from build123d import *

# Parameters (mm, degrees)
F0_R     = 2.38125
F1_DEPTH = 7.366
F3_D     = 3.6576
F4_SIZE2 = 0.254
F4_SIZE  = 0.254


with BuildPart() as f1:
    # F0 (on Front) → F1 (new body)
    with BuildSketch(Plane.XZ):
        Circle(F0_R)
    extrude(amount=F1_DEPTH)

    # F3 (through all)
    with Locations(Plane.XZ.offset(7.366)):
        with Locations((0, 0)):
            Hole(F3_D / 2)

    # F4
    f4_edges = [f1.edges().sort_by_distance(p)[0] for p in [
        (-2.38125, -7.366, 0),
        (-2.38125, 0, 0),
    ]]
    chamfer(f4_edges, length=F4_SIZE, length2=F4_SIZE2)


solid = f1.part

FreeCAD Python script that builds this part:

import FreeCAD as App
import Part
import Sketcher

V = App.Vector
Q = App.Units.Quantity


def edges_at(feature, points):
    """Names of the edges that pass closest to the given points."""
    edges = feature.Shape.Edges
    near = lambda p: min(range(len(edges)), key=lambda i: edges[i].distToShape(Part.Vertex(*p))[0])
    return sorted({f"Edge{near(p) + 1}" for p in points})

doc = App.newDocument("Part")
params = doc.addObject("Spreadsheet::Sheet", "Params")
for row, (alias, value) in enumerate([
    ("sketch1_diameter", "0.1875 in"),
    ("pad1_length", "0.29 in"),
    ("sketch2_diameter", "0.144 in"),
    ("hole_diameter", "0.144 in"),
    ("chamfer_size", "0.01 in"),
    ("chamfer_size2", "0.01 in"),
], start=1):
    params.set(f"A{row}", alias)
    params.set(f"B{row}", "=" + value)
    params.setAlias(f"B{row}", alias)

body = doc.addObject("PartDesign::Body", "Body")

# Sketch on XZ plane
sketch1 = doc.addObject("Sketcher::SketchObject", "Sketch")
body.addObject(sketch1)
sketch1.AttachmentSupport = (doc.XZ_Plane, [""])
sketch1.MapMode = "FlatFace"
sketch1.addGeometry(Part.Circle(V(0, 0, 0), V(0, 0, 1), 2.4), False)
sketch1.addConstraint([
    Sketcher.Constraint("Coincident", 0, 3, -1, 1),
    Sketcher.Constraint("Diameter", 0, Q("0.1875 in")),
])
sketch1.setExpression("Constraints[1]", "Params.sketch1_diameter")
pad1 = doc.addObject("PartDesign::Pad", "Pad")
body.addObject(pad1)
pad1.Profile = sketch1
pad1.setExpression("Length", "Params.pad1_length")

# Sketch on XZ plane
sketch2 = doc.addObject("Sketcher::SketchObject", "Sketch001")
body.addObject(sketch2)
sketch2.AttachmentSupport = (doc.XZ_Plane, [""])
sketch2.MapMode = "FlatFace"
sketch2.AttachmentOffset = App.Placement(V(0, 0, 0.29 * 25.4), App.Rotation())
sketch2.addGeometry(Part.Circle(V(0, 0, 0), V(0, 0, 1), 1.8), False)
sketch2.addConstraint([
    Sketcher.Constraint("Coincident", 0, 3, -1, 1),
    Sketcher.Constraint("Diameter", 0, Q("0.144 in")),
])
sketch2.setExpression("Constraints[1]", "Params.sketch2_diameter")
doc.recompute()
hole = doc.addObject("PartDesign::Hole", "Hole")
body.addObject(hole)
hole.Profile = sketch2
hole.ThreadType = "None"
hole.setExpression("Diameter", "Params.hole_diameter")
hole.DepthType = "ThroughAll"
doc.recompute()

chamfer = doc.addObject("PartDesign::Chamfer", "Chamfer")
body.addObject(chamfer)
chamfer.Base = (hole, edges_at(hole, [(-2.381, -7.366, 0), (-2.381, 0, 0)]))
chamfer.ChamferType = "Two distances"
chamfer.setExpression("Size", "Params.chamfer_size")
chamfer.setExpression("Size2", "Params.chamfer_size2")

doc.recompute()
